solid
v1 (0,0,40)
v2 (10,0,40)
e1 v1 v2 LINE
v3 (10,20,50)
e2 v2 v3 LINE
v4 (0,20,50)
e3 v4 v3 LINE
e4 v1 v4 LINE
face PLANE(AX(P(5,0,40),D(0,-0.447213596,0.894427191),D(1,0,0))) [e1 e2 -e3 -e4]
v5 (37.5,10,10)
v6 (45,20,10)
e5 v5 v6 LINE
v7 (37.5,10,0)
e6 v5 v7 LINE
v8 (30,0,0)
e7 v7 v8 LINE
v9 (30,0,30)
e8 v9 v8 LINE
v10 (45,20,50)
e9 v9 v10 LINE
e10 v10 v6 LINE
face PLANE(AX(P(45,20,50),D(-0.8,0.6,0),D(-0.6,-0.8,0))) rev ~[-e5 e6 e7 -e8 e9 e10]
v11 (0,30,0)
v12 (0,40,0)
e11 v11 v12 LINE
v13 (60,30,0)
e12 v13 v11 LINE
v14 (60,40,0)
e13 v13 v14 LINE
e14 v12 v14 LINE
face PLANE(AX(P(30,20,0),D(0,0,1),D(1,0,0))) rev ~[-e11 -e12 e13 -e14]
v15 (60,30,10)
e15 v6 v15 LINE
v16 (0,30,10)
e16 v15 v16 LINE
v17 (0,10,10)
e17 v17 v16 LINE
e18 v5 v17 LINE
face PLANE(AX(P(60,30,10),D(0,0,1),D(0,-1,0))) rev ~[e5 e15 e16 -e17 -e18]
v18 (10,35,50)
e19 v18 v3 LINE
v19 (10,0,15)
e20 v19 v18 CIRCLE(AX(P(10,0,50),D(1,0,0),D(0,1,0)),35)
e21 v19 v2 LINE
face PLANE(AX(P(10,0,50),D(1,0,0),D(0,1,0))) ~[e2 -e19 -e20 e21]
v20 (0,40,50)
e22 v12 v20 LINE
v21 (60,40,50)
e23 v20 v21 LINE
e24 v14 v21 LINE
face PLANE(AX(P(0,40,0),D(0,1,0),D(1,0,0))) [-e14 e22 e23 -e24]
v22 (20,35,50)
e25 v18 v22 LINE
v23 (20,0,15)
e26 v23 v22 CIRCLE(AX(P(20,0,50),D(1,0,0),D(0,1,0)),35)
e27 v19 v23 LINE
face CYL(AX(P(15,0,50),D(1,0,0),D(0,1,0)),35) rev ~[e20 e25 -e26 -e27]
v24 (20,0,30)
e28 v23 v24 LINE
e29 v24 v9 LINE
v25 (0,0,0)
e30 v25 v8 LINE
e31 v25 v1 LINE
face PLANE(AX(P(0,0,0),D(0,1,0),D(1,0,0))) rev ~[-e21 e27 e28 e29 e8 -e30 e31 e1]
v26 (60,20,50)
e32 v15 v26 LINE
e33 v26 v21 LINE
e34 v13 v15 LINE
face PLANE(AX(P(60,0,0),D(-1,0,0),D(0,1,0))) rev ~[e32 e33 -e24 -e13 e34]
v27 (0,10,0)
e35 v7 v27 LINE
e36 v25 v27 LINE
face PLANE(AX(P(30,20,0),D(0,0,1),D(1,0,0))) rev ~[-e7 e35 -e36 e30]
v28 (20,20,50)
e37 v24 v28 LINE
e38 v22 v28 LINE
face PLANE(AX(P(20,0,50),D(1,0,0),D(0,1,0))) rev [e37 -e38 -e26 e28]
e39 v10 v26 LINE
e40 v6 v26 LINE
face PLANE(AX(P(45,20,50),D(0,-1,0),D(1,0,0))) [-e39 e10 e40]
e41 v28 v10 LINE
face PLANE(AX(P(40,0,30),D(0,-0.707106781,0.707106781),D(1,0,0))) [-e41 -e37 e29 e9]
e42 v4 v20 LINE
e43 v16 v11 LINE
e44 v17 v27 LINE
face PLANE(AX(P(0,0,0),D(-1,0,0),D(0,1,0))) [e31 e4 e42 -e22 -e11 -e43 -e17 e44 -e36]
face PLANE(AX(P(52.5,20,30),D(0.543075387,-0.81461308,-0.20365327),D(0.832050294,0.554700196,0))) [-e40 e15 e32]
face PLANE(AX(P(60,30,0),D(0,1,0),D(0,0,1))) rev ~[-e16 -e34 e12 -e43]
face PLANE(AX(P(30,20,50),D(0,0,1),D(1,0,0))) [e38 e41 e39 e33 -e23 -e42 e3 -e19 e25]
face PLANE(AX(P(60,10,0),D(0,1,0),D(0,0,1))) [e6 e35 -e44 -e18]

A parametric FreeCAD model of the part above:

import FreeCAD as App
import Part
import Sketcher

V = App.Vector

doc = App.newDocument("Part")
body = doc.addObject("PartDesign::Body", "Body")

# Sketch on XY plane
sketch1 = body.newObject("Sketcher::SketchObject", "Sketch")
sketch1.AttachmentSupport = (doc.getObject("XY_Plane"), [""])
sketch1.MapMode = "FlatFace"
sketch1.addGeometry([
    Part.LineSegment(V(0, 40, 0), V(0, 0, 0)),
    Part.LineSegment(V(0, 0, 0), V(60, 0, 0)),
    Part.LineSegment(V(60, 0, 0), V(60, 40, 0)),
    Part.LineSegment(V(60, 40, 0), V(0, 40, 0)),
], False)
sketch1.addConstraint([
    Sketcher.Constraint("Coincident", 0, 2, 1, 1),
    Sketcher.Constraint("Coincident", 1, 2, 2, 1),
    Sketcher.Constraint("Coincident", 2, 2, 3, 1),
    Sketcher.Constraint("Coincident", 3, 2, 0, 1),
    Sketcher.Constraint("Vertical", 0),
    Sketcher.Constraint("Horizontal", 1),
    Sketcher.Constraint("Vertical", 2),
    Sketcher.Constraint("Horizontal", 3),
    Sketcher.Constraint("Coincident", 0, 2, -1, 1),
    Sketcher.Constraint("DistanceX", 1, 1, 1, 2, 60.0),
    Sketcher.Constraint("DistanceY", 0, 2, 0, 1, 40.0),
])
pad1 = body.newObject("PartDesign::Pad", "Pad")
pad1.Profile = sketch1
pad1.Length = 50

# Sketch on XY plane
sketch2 = body.newObject("Sketcher::SketchObject", "Sketch001")
sketch2.AttachmentSupport = (doc.getObject("XY_Plane"), [""])
sketch2.MapMode = "FlatFace"
sketch2.AttachmentOffset = App.Placement(V(0, 0, 50), App.Rotation())
sketch2.addGeometry([
    Part.LineSegment(V(10, 35, 0), V(10, 0, 0)),
    Part.LineSegment(V(10, 0, 0), V(20, 0, 0)),
    Part.LineSegment(V(20, 0, 0), V(20, 35, 0)),
    Part.LineSegment(V(20, 35, 0), V(10, 35, 0)),
], False)
sketch2.addConstraint([
    Sketcher.Constraint("Coincident", 0, 2, 1, 1),
    Sketcher.Constraint("Coincident", 1, 2, 2, 1),
    Sketcher.Constraint("Coincident", 2, 2, 3, 1),
    Sketcher.Constraint("Coincident", 3, 2, 0, 1),
    Sketcher.Constraint("Vertical", 0),
    Sketcher.Constraint("Horizontal", 1),
    Sketcher.Constraint("Vertical", 2),
    Sketcher.Constraint("Horizontal", 3),
    Sketcher.Constraint("PointOnObject", 0, 2, -1),
    Sketcher.Constraint("DistanceX", 1, 1, 1, 2, 10.0),
    Sketcher.Constraint("DistanceY", 0, 2, 0, 1, 35.0),
    Sketcher.Constraint("DistanceX", -1, 1, 0, 2, 10.0),
])
groove = body.newObject("PartDesign::Groove", "Groove")
groove.Profile = sketch2
groove.ReferenceAxis = (sketch2, ["H_Axis"])
groove.Angle = 360

# Sketch on XZ plane
sketch3 = body.newObject("Sketcher::SketchObject", "Sketch002")
sketch3.AttachmentSupport = (doc.getObject("XZ_Plane"), [""])
sketch3.MapMode = "FlatFace"
sketch3.addGeometry([
    Part.LineSegment(V(0, 50, 0), V(0, 40, 0)),
    Part.LineSegment(V(0, 40, 0), V(10, 40, 0)),
    Part.LineSegment(V(10, 40, 0), V(10, 50, 0)),
    Part.LineSegment(V(10, 50, 0), V(0, 50, 0)),
], False)
sketch3.addConstraint([
    Sketcher.Constraint("Coincident", 0, 2, 1, 1),
    Sketcher.Constraint("Coincident", 1, 2, 2, 1),
    Sketcher.Constraint("Coincident", 2, 2, 3, 1),
    Sketcher.Constraint("Coincident", 3, 2, 0, 1),
    Sketcher.Constraint("Vertical", 0),
    Sketcher.Constraint("Horizontal", 1),
    Sketcher.Constraint("Vertical", 2),
    Sketcher.Constraint("Horizontal", 3),
    Sketcher.Constraint("PointOnObject", 0, 2, -2),
    Sketcher.Constraint("Equal", 3, 0),
    Sketcher.Constraint("DistanceX", 1, 1, 1, 2, 10.0),
    Sketcher.Constraint("DistanceY", -1, 1, 0, 2, 40.0),
])

# Sketch on an angled plane
sketch4 = body.newObject("Sketcher::SketchObject", "Sketch003")
sketch4.Placement = App.Placement(V(0, -16, 32), App.Rotation(V(0, 0.894427191, 0.447213595), V(1, 0, 0), V(0, 0.447213595, -0.894427191), "ZXY"))
sketch4.addGeometry(Part.LineSegment(V(18, 0, 0), V(40, 0, 0)), False)
sketch4.addConstraint([
    Sketcher.Constraint("Horizontal", 0),
    Sketcher.Constraint("PointOnObject", 0, 1, -1),
    Sketcher.Constraint("DistanceX", 0, 1, 0, 2, 22.36068),
    Sketcher.Constraint("DistanceX", -1, 1, 0, 1, 17.888544),
])
doc.recompute()

subtractivepipe = body.newObject("PartDesign::SubtractivePipe", "SubtractivePipe")
subtractivepipe.Profile = sketch3
subtractivepipe.Spine = (sketch4, ["Edge1"])

# Sketch on XY plane
sketch5 = body.newObject("Sketcher::SketchObject", "Sketch004")
sketch5.AttachmentSupport = (doc.getObject("XY_Plane"), [""])
sketch5.MapMode = "FlatFace"
sketch5.AttachmentOffset = App.Placement(V(0, 0, 50), App.Rotation())
sketch5.addGeometry([
    Part.LineSegment(V(45, 20, 0), V(30, 0, 0)),
    Part.LineSegment(V(30, 0, 0), V(45, 0, 0)),
    Part.LineSegment(V(45, 0, 0), V(45, 20, 0)),
], False)
sketch5.addConstraint([
    Sketcher.Constraint("Coincident", 0, 2, 1, 1),
    Sketcher.Constraint("Coincident", 1, 2, 2, 1),
    Sketcher.Constraint("Coincident", 2, 2, 0, 1),
    Sketcher.Constraint("Horizontal", 1),
    Sketcher.Constraint("Vertical", 2),
    Sketcher.Constraint("PointOnObject", 0, 2, -1),
    Sketcher.Constraint("DistanceX", 1, 1, 1, 2, 15.0),
    Sketcher.Constraint("DistanceY", 2, 1, 2, 2, 20.0),
    Sketcher.Constraint("DistanceX", -1, 1, 0, 2, 30.0),
])
pocket1 = body.newObject("PartDesign::Pocket", "Pocket")
pocket1.Profile = sketch5
pocket1.Type = "ThroughAll"

# Sketch on XY plane
sketch6 = body.newObject("Sketcher::SketchObject", "Sketch005")
sketch6.AttachmentSupport = (doc.getObject("XY_Plane"), [""])
sketch6.MapMode = "FlatFace"
sketch6.AttachmentOffset = App.Placement(V(0, 0, 50), App.Rotation())
sketch6.addGeometry([
    Part.LineSegment(V(45, 20, 0), V(45, 0, 0)),
    Part.LineSegment(V(45, 0, 0), V(60, 0, 0)),
    Part.LineSegment(V(60, 0, 0), V(60, 20, 0)),
    Part.LineSegment(V(60, 20, 0), V(45, 20, 0)),
], False)
sketch6.addConstraint([
    Sketcher.Constraint("Coincident", 0, 2, 1, 1),
    Sketcher.Constraint("Coincident", 1, 2, 2, 1),
    Sketcher.Constraint("Coincident", 2, 2, 3, 1),
    Sketcher.Constraint("Coincident", 3, 2, 0, 1),
    Sketcher.Constraint("Vertical", 0),
    Sketcher.Constraint("Horizontal", 1),
    Sketcher.Constraint("Vertical", 2),
    Sketcher.Constraint("Horizontal", 3),
    Sketcher.Constraint("PointOnObject", 0, 2, -1),
    Sketcher.Constraint("DistanceX", 1, 1, 1, 2, 15.0),
    Sketcher.Constraint("DistanceY", 0, 2, 0, 1, 20.0),
    Sketcher.Constraint("DistanceX", -1, 1, 0, 2, 45.0),
])
pocket2 = body.newObject("PartDesign::Pocket", "Pocket001")
pocket2.Profile = sketch6
pocket2.Type = "ThroughAll"

# Sketch on XZ plane
sketch7 = body.newObject("Sketcher::SketchObject", "Sketch006")
sketch7.AttachmentSupport = (doc.getObject("XZ_Plane"), [""])
sketch7.MapMode = "FlatFace"
sketch7.addGeometry([
    Part.LineSegment(V(20, 50, 0), V(20, 30, 0)),
    Part.LineSegment(V(20, 30, 0), V(60, 30, 0)),
    Part.LineSegment(V(60, 30, 0), V(60, 50, 0)),
    Part.LineSegment(V(60, 50, 0), V(20, 50, 0)),
], False)
sketch7.addConstraint([
    Sketcher.Constraint("Coincident", 0, 2, 1, 1),
    Sketcher.Constraint("Coincident", 1, 2, 2, 1),
    Sketcher.Constraint("Coincident", 2, 2, 3, 1),
    Sketcher.Constraint("Coincident", 3, 2, 0, 1),
    Sketcher.Constraint("Vertical", 0),
    Sketcher.Constraint("Horizontal", 1),
    Sketcher.Constraint("Vertical", 2),
    Sketcher.Constraint("Horizontal", 3),
    Sketcher.Constraint("DistanceX", 1, 1, 1, 2, 40.0),
    Sketcher.Constraint("DistanceY", 0, 2, 0, 1, 20.0),
    Sketcher.Constraint("DistanceX", -1, 1, 0, 2, 20.0),
    Sketcher.Constraint("DistanceY", -1, 1, 0, 2, 30.0),
])

# Sketch on an angled plane
sketch8 = body.newObject("Sketcher::SketchObject", "Sketch007")
sketch8.Placement = App.Placement(V(0, -15, 15), App.Rotation(V(0, 0.707106781, 0.707106781), V(0.999999999, 0, 0), V(0, 0.707106781, -0.707106781), "ZXY"))
sketch8.addGeometry(Part.LineSegment(V(21, 60, 0), V(49, 60, 0)), False)
sketch8.addConstraint([
    Sketcher.Constraint("Horizontal", 0),
    Sketcher.Constraint("DistanceY", -1, 1, 0, 1, 60.0),
    Sketcher.Constraint("DistanceX", 0, 1, 0, 2, 28.284271),
    Sketcher.Constraint("DistanceX", -1, 1, 0, 1, 21.213203),
])
doc.recompute()

subtractivepipe2 = body.newObject("PartDesign::SubtractivePipe", "SubtractivePipe001")
subtractivepipe2.Profile = sketch7
subtractivepipe2.Spine = (sketch8, ["Edge1"])

# Sketch on YZ plane
sketch9 = body.newObject("Sketcher::SketchObject", "Sketch008")
sketch9.AttachmentSupport = (doc.getObject("YZ_Plane"), [""])
sketch9.MapMode = "FlatFace"
sketch9.AttachmentOffset = App.Placement(V(0, 0, 60), App.Rotation())
sketch9.addGeometry([
    Part.LineSegment(V(30, 0, 0), V(30, 10, 0)),
    Part.LineSegment(V(30, 10, 0), V(10, 10, 0)),
    Part.LineSegment(V(10, 10, 0), V(10, 0, 0)),
    Part.LineSegment(V(10, 0, 0), V(30, 0, 0)),
], False)
sketch9.addConstraint([
    Sketcher.Constraint("Coincident", 0, 2, 1, 1),
    Sketcher.Constraint("Coincident", 1, 2, 2, 1),
    Sketcher.Constraint("Coincident", 2, 2, 3, 1),
    Sketcher.Constraint("Coincident", 3, 2, 0, 1),
    Sketcher.Constraint("Vertical", 0),
    Sketcher.Constraint("Horizontal", 1),
    Sketcher.Constraint("Vertical", 2),
    Sketcher.Constraint("Horizontal", 3),
    Sketcher.Constraint("PointOnObject", 2, 2, -1),
    Sketcher.Constraint("DistanceX", 1, 2, 1, 1, 20.0),
    Sketcher.Constraint("DistanceY", 0, 1, 0, 2, 10.0),
    Sketcher.Constraint("DistanceX", -1, 1, 0, 2, 30.0),
])
pocket3 = body.newObject("PartDesign::Pocket", "Pocket002")
pocket3.Profile = sketch9
pocket3.Type = "ThroughAll"

# Sketch on XY plane
sketch10 = body.newObject("Sketcher::SketchObject", "Sketch009")
sketch10.AttachmentSupport = (doc.getObject("XY_Plane"), [""])
sketch10.MapMode = "FlatFace"
sketch10.AttachmentOffset = App.Placement(V(0, 0, 10), App.Rotation())
sketch10.addGeometry([
    Part.LineSegment(V(60, 20, 0), V(45, 20, 0)),
    Part.LineSegment(V(45, 20, 0), V(60, 30, 0)),
    Part.LineSegment(V(60, 30, 0), V(60, 20, 0)),
], False)
sketch10.addConstraint([
    Sketcher.Constraint("Coincident", 0, 2, 1, 1),
    Sketcher.Constraint("Coincident", 1, 2, 2, 1),
    Sketcher.Constraint("Coincident", 2, 2, 0, 1),
    Sketcher.Constraint("Horizontal", 0),
    Sketcher.Constraint("Vertical", 2),
    Sketcher.Constraint("DistanceX", 0, 2, 0, 1, 15.0),
    Sketcher.Constraint("DistanceY", 2, 2, 2, 1, 10.0),
    Sketcher.Constraint("DistanceX", -1, 1, 0, 2, 45.0),
    Sketcher.Constraint("DistanceY", -1, 1, 0, 2, 20.0),
])

# Sketch on an angled plane
sketch11 = body.newObject("Sketcher::SketchObject", "Sketch010")
sketch11.Placement = App.Placement(V(0, 30.588235, 7.647059), App.Rotation(V(0, 0.242535625, -0.9701425), V(1, 0, 0), V(0, -0.9701425, -0.242535625), "ZXY"))
sketch11.addGeometry(Part.LineSegment(V(-2, 60, 0), V(-44, 60, 0)), False)
sketch11.addConstraint([
    Sketcher.Constraint("Horizontal", 0),
    Sketcher.Constraint("DistanceY", -1, 1, 0, 1, 60.0),
    Sketcher.Constraint("DistanceX", 0, 2, 0, 1, 41.231056),
    Sketcher.Constraint("DistanceX", 0, 1, -1, 1, 2.425356),
])
doc.recompute()

subtractivepipe3 = body.newObject("PartDesign::SubtractivePipe", "SubtractivePipe002")
subtractivepipe3.Profile = sketch10
subtractivepipe3.Spine = (sketch11, ["Edge1"])

# Sketch on YZ plane
sketch12 = body.newObject("Sketcher::SketchObject", "Sketch011")
sketch12.AttachmentSupport = (doc.getObject("YZ_Plane"), [""])
sketch12.MapMode = "FlatFace"
sketch12.AttachmentOffset = App.Placement(V(0, 0, 60), App.Rotation())
sketch12.addGeometry([
    Part.LineSegment(V(10, 10, 0), V(10, 0, 0)),
    Part.LineSegment(V(10, 0, 0), V(30, 0, 0)),
    Part.LineSegment(V(30, 0, 0), V(30, 10, 0)),
    Part.LineSegment(V(30, 10, 0), V(10, 10, 0)),
], False)
sketch12.addConstraint([
    Sketcher.Constraint("Coincident", 0, 2, 1, 1),
    Sketcher.Constraint("Coincident", 1, 2, 2, 1),
    Sketcher.Constraint("Coincident", 2, 2, 3, 1),
    Sketcher.Constraint("Coincident", 3, 2, 0, 1),
    Sketcher.Constraint("Vertical", 0),
    Sketcher.Constraint("Horizontal", 1),
    Sketcher.Constraint("Vertical", 2),
    Sketcher.Constraint("Horizontal", 3),
    Sketcher.Constraint("PointOnObject", 0, 2, -1),
    Sketcher.Constraint("DistanceX", 1, 1, 1, 2, 20.0),
    Sketcher.Constraint("DistanceY", 0, 2, 0, 1, 10.0),
    Sketcher.Constraint("DistanceX", -1, 1, 0, 2, 10.0),
])
pocket4 = body.newObject("PartDesign::Pocket", "Pocket003")
pocket4.Profile = sketch12
pocket4.Type = "ThroughAll"

doc.recompute()
